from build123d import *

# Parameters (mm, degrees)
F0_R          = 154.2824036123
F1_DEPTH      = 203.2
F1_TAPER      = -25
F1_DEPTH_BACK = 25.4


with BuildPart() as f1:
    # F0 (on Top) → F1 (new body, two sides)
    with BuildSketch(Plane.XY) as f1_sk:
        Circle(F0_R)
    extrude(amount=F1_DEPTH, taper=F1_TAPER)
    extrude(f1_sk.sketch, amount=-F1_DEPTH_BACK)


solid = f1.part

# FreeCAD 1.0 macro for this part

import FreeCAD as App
import Part
import Sketcher
from FreeCAD import Vector
Q = App.Units.Quantity

doc = App.newDocument("Part")
params = doc.addObject("Spreadsheet::Sheet", "Params")
for row, (alias, value) in enumerate([
    ("pad1_length", "8 in"),
    ("pad1_taper", "25 deg"),
    ("pad2_length", "1 in"),
], start=1):
    params.set(f"A{row}", alias)
    params.set(f"B{row}", "=" + value)
    params.setAlias(f"B{row}", alias)

body = doc.addObject("PartDesign::Body", "Body")

# Sketch on XY plane
sketch1 = body.newObject("Sketcher::SketchObject", "Sketch")
sketch1.AttachmentSupport = (doc.getObject("XY_Plane"), [""])
sketch1.MapMode = "FlatFace"
sketch1.addGeometry(Part.Circle(Vector(0, 0, 0), Vector(0, 0, 1), 154), False)
sketch1.addConstraint(Sketcher.Constraint("Coincident", 0, 3, -1, 1))
sketch1.addConstraint(Sketcher.Constraint("Diameter", 0, Q("308.564807 mm")))
pad1 = body.newObject("PartDesign::Pad", "Pad")
pad1.Profile = sketch1
pad1.setExpression("Length", "Params.pad1_length")
pad1.setExpression("TaperAngle", "Params.pad1_taper")
pad2 = body.newObject("PartDesign::Pad", "Pad001")
pad2.Profile = sketch1
pad2.setExpression("Length", "Params.pad2_length")
pad2.Reversed = True

doc.recompute()
